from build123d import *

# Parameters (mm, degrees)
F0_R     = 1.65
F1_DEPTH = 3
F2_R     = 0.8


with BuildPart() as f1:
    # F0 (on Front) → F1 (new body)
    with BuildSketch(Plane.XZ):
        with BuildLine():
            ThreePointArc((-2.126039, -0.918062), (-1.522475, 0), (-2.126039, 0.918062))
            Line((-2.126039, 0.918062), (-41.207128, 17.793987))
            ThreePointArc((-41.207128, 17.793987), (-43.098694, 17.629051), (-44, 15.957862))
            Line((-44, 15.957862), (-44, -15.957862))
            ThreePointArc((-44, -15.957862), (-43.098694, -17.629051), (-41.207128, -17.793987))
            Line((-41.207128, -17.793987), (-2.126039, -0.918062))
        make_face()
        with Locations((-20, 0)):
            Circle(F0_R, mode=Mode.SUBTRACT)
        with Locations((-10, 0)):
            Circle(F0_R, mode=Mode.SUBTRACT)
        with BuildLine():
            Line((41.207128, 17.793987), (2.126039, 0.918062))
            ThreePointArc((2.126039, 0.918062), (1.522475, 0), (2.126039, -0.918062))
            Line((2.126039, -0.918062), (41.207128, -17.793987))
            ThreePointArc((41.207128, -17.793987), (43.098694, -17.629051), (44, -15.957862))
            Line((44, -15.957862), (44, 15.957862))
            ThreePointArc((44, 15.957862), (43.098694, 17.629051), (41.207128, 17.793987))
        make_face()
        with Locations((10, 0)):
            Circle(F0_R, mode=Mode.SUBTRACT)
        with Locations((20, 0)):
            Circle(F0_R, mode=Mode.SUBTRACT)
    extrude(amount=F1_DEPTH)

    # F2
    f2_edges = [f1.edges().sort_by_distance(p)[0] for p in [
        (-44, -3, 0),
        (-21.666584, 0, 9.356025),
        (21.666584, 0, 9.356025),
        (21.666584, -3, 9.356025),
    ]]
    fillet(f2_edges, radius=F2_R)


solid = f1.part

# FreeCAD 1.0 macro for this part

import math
import FreeCAD as App
import Part
import Sketcher

V = App.Vector
Q = App.Units.Quantity


def edges_at(feature, points):
    """Names of the edges that pass closest to the given points."""
    edges = feature.Shape.Edges
    near = lambda p: min(range(len(edges)), key=lambda i: edges[i].distToShape(Part.Vertex(*p))[0])
    return sorted({f"Edge{near(p) + 1}" for p in points})

doc = App.newDocument("Part")
body = doc.addObject("PartDesign::Body", "Body")
body.AllowCompound = True

sketch1 = body.newObject("Sketcher::SketchObject", "Sketch")
sketch1.AttachmentSupport = (doc.getObject("XZ_Plane"), [""])
sketch1.MapMode = "FlatFace"
sketch1.addGeometry([
    Part.ArcOfCircle(Part.Circle(V(-2.5, 0, 0), V(0, 0, 1), 1), math.radians(-67), math.radians(67)),
    Part.LineSegment(V(-2.1, 0.9, 0), V(-41.2, 17.8, 0)),
    Part.ArcOfCircle(Part.Circle(V(-42, 16, 0), V(0, 0, 1), 2), math.radians(67), math.radians(180)),
    Part.LineSegment(V(-44, 16, 0), V(-44, -16, 0)),
    Part.ArcOfCircle(Part.Circle(V(-42, -16, 0), V(0, 0, 1), 2), math.radians(180), math.radians(293)),
    Part.LineSegment(V(-41.2, -17.8, 0), V(-2.1, -0.9, 0)),
    Part.Circle(V(-20, 0, 0), V(0, 0, 1), 1.6),
    Part.Circle(V(-10, 0, 0), V(0, 0, 1), 1.6),
    Part.LineSegment(V(41.2, 17.8, 0), V(2.1, 0.9, 0)),
    Part.ArcOfCircle(Part.Circle(V(2.5, 0, 0), V(0, 0, 1), 1), math.radians(113), math.radians(247)),
    Part.LineSegment(V(2.1, -0.9, 0), V(41.2, -17.8, 0)),
    Part.ArcOfCircle(Part.Circle(V(42, -16, 0), V(0, 0, 1), 2), math.radians(-113), math.radians(0)),
    Part.LineSegment(V(44, -16, 0), V(44, 16, 0)),
    Part.ArcOfCircle(Part.Circle(V(42, 16, 0), V(0, 0, 1), 2), math.radians(0), math.radians(113)),
    Part.Circle(V(10, 0, 0), V(0, 0, 1), 1.6),
    Part.Circle(V(20, 0, 0), V(0, 0, 1), 1.6),
], False)
sketch1.addConstraint([
    Sketcher.Constraint("Tangent", 0, 2, 1, 1),
    Sketcher.Constraint("Tangent", 1, 2, 2, 1),
    Sketcher.Constraint("Tangent", 2, 2, 3, 1),
    Sketcher.Constraint("Tangent", 3, 2, 4, 1),
    Sketcher.Constraint("Tangent", 4, 2, 5, 1),
    Sketcher.Constraint("Tangent", 5, 2, 0, 1),
    Sketcher.Constraint("Tangent", 8, 2, 9, 1),
    Sketcher.Constraint("Tangent", 9, 2, 10, 1),
    Sketcher.Constraint("Tangent", 10, 2, 11, 1),
    Sketcher.Constraint("Tangent", 11, 2, 12, 1),
    Sketcher.Constraint("Tangent", 12, 2, 13, 1),
    Sketcher.Constraint("Tangent", 13, 2, 8, 1),
    Sketcher.Constraint("Vertical", 3),
    Sketcher.Constraint("Vertical", 12),
    Sketcher.Constraint("Equal", 2, 4),
    Sketcher.Constraint("Equal", 6, 7),
    Sketcher.Constraint("Equal", 0, 9),
    Sketcher.Constraint("Equal", 4, 11),
    Sketcher.Constraint("Equal", 11, 13),
    Sketcher.Constraint("Equal", 7, 14),
    Sketcher.Constraint("Equal", 14, 15),
    Sketcher.Constraint("Symmetric", 0, 3, 9, 3, -1, 1),
    Sketcher.Constraint("Symmetric", 2, 3, 11, 3, -1, 1),
    Sketcher.Constraint("Symmetric", 7, 3, 14, 3, -1, 1),
    Sketcher.Constraint("Symmetric", 6, 3, 15, 3, -1, 1),
    Sketcher.Constraint("Symmetric", 0, 2, 8, 2, -2),
    Sketcher.Constraint("PointOnObject", 6, 3, -1),
    Sketcher.Constraint("PointOnObject", 7, 3, -1),
    Sketcher.Constraint("Parallel", 5, 8),
    Sketcher.Constraint("Radius", 0, Q("0.999999 mm")),
    Sketcher.Constraint("Radius", 2, Q("2 mm")),
    Sketcher.Constraint("Diameter", 6, Q("3.3 mm")),
    Sketcher.Constraint("DistanceX", 2, 3, -1, 1, Q("42 mm")),
    Sketcher.Constraint("DistanceX", 6, 3, -1, 1, Q("20 mm")),
    Sketcher.Constraint("DistanceX", 7, 3, -1, 1, Q("10 mm")),
    Sketcher.Constraint("Distance", 1, Q("42.569101 mm")),
    Sketcher.Constraint("DistanceY", 3, 2, 3, 1, Q("31.915724 mm")),
])
pad1 = body.newObject("PartDesign::Pad", "Pad")
pad1.Profile = sketch1
pad1.Length = 3
doc.recompute()

fillet = body.newObject("PartDesign::Fillet", "Fillet")
fillet.Base = (pad1, edges_at(pad1, [
    (-44, -3, 0),
    (-21.667, 0, 9.356),
    (21.667, 0, 9.356),
    (21.667, -3, 9.356),
]))
fillet.Radius = 0.8

doc.recompute()
